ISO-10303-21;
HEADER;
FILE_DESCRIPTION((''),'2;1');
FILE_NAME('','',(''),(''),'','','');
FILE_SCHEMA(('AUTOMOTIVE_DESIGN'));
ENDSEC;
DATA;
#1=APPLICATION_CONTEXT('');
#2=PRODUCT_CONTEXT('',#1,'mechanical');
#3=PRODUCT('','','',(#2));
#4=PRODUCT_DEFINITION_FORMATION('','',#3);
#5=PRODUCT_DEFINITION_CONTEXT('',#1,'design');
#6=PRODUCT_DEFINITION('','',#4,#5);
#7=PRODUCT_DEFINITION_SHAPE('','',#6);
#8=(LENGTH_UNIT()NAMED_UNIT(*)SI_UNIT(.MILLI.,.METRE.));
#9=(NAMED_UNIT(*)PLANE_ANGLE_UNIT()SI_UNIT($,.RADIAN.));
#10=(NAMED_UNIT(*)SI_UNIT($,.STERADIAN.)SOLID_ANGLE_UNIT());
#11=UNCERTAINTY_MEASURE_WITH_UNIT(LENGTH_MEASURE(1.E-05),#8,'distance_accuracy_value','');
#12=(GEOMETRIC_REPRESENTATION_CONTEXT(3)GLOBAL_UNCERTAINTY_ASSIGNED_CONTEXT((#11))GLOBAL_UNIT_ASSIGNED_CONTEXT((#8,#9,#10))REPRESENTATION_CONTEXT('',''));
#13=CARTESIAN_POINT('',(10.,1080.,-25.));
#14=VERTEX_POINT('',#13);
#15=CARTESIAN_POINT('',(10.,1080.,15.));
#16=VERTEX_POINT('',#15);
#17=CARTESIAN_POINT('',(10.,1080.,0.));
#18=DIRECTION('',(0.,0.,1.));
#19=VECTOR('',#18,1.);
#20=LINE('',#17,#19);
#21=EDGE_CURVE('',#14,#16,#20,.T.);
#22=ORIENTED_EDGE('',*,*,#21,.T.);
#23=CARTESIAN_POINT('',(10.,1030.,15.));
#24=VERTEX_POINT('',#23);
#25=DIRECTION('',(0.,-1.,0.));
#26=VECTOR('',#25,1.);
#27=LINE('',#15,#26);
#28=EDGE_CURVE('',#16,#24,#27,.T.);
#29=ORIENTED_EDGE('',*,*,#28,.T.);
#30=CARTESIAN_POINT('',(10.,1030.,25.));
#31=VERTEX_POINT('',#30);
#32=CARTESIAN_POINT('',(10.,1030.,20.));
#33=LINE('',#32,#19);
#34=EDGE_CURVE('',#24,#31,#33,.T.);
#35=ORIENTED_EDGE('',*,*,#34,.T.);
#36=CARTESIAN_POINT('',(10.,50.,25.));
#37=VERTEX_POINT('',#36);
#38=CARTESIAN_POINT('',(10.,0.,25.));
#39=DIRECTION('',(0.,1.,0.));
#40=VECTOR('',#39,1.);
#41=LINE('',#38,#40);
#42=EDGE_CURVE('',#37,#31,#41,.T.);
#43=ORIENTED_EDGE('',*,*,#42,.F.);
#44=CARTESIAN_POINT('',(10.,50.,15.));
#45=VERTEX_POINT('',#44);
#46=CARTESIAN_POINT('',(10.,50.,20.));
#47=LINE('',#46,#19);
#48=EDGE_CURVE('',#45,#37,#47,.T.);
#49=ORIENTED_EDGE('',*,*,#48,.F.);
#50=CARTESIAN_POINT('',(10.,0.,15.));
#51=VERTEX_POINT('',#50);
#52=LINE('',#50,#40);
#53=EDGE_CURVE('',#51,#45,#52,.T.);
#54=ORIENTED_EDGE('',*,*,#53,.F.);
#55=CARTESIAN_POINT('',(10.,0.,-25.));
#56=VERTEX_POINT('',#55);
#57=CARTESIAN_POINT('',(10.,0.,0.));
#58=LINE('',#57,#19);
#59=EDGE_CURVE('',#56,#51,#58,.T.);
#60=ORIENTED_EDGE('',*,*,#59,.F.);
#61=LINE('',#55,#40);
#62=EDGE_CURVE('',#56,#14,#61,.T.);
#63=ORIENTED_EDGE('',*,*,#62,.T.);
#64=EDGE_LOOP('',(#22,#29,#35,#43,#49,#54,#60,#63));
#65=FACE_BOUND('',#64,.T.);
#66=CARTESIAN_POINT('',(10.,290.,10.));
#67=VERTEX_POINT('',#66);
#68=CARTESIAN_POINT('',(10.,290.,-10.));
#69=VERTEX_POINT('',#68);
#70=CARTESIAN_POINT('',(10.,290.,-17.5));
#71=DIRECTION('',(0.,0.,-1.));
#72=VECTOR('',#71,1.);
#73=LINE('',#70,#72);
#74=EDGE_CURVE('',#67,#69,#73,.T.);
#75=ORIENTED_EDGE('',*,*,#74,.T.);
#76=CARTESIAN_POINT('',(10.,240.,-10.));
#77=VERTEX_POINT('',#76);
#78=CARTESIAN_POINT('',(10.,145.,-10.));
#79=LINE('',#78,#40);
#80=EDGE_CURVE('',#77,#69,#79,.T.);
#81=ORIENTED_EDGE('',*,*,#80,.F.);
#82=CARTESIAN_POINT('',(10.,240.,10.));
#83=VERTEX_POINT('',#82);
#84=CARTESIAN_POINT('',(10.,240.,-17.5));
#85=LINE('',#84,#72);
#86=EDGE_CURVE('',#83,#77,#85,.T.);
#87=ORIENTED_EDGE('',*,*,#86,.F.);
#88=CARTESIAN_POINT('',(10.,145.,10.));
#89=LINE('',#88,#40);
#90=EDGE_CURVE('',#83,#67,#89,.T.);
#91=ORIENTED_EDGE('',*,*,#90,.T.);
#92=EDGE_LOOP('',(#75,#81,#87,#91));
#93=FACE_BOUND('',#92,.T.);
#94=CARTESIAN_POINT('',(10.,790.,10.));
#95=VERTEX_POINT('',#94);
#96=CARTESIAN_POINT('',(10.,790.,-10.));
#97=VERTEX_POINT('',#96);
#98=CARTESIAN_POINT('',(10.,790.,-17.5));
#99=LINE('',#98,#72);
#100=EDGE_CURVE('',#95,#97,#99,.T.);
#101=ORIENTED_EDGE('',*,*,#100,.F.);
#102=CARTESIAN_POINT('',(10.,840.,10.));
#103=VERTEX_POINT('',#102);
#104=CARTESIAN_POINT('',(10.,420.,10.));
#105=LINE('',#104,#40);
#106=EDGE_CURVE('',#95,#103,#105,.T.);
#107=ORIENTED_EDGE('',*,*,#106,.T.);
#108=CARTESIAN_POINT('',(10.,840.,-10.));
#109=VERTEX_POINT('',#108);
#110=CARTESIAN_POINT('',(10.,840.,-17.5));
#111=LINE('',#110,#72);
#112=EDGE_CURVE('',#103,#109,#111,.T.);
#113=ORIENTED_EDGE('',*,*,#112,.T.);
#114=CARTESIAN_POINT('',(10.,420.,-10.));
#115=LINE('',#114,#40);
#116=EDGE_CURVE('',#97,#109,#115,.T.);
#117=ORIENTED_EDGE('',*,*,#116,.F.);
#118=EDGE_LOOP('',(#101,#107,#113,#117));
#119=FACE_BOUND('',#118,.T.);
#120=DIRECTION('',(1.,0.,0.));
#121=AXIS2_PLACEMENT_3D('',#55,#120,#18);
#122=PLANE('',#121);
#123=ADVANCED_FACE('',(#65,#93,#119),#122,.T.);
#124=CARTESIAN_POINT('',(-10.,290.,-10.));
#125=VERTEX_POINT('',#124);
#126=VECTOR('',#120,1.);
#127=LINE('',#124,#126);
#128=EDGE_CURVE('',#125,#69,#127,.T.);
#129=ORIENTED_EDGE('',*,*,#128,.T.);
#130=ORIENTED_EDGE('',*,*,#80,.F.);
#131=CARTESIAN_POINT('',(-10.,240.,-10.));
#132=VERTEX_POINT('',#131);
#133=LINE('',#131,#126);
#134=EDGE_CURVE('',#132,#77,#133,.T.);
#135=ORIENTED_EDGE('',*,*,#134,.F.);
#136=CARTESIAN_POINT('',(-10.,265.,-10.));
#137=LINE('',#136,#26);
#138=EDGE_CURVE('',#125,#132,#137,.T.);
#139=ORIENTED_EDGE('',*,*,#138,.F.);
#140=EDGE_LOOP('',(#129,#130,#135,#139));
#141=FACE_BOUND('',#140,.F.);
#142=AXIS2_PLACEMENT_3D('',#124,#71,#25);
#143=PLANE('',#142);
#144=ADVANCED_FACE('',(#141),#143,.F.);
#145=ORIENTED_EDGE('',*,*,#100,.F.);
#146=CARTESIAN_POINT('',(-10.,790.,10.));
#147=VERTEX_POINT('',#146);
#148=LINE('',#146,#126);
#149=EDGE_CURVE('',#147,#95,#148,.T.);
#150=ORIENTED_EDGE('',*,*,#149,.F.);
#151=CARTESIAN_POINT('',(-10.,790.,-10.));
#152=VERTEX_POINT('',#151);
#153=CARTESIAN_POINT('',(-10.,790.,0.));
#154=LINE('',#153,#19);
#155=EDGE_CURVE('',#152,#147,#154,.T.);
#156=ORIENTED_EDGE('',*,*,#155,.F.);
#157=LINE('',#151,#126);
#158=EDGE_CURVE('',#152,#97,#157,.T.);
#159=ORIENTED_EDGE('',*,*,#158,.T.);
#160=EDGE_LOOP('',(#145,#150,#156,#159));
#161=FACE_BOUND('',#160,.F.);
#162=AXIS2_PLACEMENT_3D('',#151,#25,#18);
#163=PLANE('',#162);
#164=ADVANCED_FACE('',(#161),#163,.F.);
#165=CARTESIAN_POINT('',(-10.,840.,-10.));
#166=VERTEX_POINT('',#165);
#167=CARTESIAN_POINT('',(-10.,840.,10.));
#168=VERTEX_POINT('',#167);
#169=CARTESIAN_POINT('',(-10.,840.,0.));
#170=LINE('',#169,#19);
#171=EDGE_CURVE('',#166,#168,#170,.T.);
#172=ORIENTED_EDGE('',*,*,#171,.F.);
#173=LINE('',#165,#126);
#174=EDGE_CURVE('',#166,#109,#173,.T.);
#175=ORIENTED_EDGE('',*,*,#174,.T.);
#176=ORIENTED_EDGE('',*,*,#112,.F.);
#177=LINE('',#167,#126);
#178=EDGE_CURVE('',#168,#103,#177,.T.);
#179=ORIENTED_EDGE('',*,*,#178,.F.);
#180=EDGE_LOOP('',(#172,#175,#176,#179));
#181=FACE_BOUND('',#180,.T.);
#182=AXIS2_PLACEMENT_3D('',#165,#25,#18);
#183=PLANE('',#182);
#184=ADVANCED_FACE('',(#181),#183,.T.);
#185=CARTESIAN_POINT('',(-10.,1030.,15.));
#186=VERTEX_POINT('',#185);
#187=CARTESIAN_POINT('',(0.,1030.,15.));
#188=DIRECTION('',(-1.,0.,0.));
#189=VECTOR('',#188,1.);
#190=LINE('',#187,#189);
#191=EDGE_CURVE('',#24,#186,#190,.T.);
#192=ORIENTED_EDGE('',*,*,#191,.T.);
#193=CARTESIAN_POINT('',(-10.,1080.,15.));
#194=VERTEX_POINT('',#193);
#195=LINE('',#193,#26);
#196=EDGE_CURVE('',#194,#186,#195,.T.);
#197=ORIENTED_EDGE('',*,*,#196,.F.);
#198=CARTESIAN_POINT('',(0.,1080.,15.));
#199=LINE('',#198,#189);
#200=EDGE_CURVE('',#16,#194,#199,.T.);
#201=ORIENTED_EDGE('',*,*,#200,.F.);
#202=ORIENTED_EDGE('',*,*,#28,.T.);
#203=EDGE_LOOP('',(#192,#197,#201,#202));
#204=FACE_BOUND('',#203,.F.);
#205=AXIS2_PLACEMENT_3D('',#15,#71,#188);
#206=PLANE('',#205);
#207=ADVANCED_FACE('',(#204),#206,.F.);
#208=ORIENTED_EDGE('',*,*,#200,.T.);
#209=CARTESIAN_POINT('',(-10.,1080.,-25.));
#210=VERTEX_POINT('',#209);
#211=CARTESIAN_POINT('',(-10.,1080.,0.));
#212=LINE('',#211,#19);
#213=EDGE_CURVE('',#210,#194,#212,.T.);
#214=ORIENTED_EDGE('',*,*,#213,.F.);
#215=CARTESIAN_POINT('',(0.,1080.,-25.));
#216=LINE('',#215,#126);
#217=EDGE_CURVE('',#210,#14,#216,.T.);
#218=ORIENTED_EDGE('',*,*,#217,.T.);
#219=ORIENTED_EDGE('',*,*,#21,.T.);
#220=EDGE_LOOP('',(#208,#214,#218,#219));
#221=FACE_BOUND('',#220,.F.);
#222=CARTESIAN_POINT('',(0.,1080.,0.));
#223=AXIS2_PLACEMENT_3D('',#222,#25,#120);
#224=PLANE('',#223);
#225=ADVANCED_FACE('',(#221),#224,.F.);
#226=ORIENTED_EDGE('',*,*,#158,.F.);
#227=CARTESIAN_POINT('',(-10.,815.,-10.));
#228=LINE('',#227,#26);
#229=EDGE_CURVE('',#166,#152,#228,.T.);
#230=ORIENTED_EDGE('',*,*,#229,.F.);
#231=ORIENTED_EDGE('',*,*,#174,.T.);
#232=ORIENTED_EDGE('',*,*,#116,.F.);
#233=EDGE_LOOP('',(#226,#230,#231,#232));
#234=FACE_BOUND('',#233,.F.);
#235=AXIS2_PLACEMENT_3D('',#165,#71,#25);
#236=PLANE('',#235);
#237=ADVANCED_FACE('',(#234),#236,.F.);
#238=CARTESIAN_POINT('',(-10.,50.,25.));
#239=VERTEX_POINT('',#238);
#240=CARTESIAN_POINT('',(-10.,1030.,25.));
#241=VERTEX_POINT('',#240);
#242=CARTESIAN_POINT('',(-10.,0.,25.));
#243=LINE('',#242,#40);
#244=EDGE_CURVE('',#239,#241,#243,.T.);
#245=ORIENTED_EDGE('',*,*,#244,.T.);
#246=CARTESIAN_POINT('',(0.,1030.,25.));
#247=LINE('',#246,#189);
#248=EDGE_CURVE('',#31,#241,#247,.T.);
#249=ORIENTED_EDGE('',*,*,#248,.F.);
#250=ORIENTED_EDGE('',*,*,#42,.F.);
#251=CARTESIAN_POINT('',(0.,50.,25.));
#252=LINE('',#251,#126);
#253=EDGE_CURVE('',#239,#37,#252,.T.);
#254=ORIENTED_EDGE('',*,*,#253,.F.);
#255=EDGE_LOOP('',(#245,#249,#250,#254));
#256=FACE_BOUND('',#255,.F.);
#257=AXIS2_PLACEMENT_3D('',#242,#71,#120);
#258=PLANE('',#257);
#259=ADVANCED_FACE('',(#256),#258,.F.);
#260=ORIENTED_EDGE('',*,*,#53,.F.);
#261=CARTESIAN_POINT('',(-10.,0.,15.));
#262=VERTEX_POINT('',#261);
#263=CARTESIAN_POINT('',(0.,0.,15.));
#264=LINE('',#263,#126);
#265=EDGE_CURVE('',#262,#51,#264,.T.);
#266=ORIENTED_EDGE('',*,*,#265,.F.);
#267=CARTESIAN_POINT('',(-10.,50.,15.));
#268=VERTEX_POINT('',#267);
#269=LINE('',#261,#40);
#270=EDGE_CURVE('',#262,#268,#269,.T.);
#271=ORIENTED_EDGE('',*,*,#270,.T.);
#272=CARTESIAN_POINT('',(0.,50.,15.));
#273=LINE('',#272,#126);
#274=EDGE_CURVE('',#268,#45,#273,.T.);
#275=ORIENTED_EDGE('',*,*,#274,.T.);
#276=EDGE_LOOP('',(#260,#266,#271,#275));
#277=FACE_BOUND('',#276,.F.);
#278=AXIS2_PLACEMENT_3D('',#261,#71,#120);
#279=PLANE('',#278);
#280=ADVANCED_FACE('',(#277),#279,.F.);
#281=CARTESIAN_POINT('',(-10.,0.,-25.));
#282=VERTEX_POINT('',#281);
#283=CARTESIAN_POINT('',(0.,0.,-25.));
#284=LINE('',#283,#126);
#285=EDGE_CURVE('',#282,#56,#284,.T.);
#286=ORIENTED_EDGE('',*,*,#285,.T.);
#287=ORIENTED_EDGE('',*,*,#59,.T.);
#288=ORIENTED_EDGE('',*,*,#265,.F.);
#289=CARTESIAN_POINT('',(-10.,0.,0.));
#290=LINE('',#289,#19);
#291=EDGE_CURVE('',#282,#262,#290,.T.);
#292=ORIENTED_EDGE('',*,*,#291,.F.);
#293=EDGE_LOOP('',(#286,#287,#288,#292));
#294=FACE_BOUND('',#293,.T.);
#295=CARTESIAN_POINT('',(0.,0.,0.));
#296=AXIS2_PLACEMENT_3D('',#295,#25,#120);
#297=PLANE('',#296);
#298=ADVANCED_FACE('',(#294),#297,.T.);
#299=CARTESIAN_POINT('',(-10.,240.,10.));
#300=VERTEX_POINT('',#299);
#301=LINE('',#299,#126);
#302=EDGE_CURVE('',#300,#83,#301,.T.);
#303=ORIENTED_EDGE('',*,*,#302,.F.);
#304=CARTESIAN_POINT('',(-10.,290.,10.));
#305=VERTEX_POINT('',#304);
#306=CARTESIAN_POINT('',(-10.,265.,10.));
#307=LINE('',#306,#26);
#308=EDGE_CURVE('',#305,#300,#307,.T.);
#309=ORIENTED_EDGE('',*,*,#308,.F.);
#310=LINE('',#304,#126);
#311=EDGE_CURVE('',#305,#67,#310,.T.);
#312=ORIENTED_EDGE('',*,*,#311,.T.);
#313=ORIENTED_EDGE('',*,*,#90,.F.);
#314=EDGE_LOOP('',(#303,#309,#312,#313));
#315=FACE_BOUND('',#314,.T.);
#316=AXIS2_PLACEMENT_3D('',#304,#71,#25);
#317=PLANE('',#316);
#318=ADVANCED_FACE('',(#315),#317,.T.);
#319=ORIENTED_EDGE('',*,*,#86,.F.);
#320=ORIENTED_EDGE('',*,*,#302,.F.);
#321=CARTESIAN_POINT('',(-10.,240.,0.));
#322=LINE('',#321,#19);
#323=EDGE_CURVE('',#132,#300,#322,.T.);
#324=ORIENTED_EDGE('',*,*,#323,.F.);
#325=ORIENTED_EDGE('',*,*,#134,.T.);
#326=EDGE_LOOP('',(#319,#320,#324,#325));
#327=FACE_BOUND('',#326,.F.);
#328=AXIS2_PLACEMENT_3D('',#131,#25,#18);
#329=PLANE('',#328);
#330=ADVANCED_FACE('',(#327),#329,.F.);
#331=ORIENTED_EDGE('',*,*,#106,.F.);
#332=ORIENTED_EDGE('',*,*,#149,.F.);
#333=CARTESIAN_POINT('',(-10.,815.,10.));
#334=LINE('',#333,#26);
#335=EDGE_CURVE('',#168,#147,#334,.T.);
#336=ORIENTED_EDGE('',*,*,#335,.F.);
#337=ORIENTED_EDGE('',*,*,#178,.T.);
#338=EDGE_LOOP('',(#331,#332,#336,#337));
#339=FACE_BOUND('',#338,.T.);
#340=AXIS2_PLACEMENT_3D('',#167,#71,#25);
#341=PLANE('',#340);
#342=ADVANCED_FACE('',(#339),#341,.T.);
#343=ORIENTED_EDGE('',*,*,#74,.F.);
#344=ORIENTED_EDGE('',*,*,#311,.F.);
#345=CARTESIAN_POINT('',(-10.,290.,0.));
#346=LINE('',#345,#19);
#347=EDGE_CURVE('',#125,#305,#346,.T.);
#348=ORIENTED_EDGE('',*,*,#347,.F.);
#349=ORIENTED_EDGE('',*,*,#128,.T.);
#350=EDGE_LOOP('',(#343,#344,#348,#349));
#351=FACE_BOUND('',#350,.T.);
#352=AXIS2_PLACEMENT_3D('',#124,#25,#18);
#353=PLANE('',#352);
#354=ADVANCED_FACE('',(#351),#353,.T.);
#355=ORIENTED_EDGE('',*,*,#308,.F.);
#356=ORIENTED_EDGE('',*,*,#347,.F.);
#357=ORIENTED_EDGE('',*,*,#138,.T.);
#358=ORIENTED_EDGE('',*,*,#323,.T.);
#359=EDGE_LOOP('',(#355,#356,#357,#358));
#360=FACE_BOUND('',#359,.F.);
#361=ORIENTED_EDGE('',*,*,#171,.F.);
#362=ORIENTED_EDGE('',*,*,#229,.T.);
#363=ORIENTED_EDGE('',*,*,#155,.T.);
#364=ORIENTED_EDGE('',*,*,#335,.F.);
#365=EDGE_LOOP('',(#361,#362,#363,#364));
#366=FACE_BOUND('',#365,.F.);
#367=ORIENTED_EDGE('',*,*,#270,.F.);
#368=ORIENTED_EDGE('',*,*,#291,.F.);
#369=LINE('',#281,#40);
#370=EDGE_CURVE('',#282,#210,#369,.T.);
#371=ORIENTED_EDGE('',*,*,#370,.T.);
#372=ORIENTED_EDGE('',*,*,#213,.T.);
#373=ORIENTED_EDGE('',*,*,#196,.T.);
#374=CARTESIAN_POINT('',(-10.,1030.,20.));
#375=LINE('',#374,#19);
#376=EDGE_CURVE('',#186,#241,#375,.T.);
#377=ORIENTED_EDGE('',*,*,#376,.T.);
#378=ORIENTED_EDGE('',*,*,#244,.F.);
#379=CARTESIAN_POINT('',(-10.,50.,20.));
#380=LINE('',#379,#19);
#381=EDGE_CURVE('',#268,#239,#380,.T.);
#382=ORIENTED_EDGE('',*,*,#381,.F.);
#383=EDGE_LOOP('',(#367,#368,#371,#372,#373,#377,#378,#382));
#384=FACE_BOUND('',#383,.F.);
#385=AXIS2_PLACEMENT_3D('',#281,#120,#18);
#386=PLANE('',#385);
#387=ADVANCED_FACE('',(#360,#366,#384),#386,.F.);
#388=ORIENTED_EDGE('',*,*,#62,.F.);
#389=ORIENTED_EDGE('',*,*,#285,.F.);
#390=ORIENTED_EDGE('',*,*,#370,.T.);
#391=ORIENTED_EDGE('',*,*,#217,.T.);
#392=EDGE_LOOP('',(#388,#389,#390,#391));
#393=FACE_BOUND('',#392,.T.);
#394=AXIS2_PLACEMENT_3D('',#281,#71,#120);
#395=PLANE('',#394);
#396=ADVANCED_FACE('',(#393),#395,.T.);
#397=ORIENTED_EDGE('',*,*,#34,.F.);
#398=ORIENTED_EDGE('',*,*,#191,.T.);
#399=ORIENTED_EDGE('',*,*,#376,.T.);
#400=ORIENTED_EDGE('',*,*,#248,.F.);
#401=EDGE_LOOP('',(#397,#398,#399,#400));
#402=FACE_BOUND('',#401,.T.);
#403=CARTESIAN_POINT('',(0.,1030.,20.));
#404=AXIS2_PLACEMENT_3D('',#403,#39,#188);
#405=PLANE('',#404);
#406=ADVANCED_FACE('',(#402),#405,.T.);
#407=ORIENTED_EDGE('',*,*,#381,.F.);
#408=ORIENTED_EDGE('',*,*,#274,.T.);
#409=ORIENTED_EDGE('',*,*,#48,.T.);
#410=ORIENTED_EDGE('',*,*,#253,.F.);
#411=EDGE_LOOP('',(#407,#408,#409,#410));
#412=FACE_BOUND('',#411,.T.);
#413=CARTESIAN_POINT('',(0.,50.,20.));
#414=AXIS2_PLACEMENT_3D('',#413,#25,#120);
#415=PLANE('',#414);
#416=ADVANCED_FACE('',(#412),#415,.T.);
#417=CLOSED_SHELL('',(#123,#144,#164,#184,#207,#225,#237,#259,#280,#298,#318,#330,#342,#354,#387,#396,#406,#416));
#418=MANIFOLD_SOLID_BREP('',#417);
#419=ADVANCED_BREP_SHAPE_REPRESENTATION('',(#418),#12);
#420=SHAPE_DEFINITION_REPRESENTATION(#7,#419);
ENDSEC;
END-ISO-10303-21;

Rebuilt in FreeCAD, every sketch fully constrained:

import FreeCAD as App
import Part
import Sketcher

V = App.Vector


def add_polygon(sketch, points):
    """Adds a closed chain of lines whose ends are joined by coincident constraints."""
    first, n = sketch.GeometryCount, len(points)
    for a, b in zip(points, points[1:] + points[:1]):
        sketch.addGeometry(Part.LineSegment(App.Vector(*a, 0), App.Vector(*b, 0)), False)
    for i in range(n):
        sketch.addConstraint(Sketcher.Constraint("Coincident", first + i, 2, first + (i + 1) % n, 1))

doc = App.newDocument("Part")
body = doc.addObject("PartDesign::Body", "Body")

sketch1 = doc.addObject("Sketcher::SketchObject", "Sketch")
body.addObject(sketch1)
sketch1.AttachmentSupport = (doc.XZ_Plane, [""])
sketch1.MapMode = "FlatFace"
add_polygon(sketch1, [(-10, 25), (-10, -25), (10, -25), (10, 25)])
sketch1.addConstraint([
    Sketcher.Constraint("Vertical", 0),
    Sketcher.Constraint("Horizontal", 1),
    Sketcher.Constraint("Vertical", 2),
    Sketcher.Constraint("Horizontal", 3),
    Sketcher.Constraint("Symmetric", 0, 2, 2, 2, -1, 1),
    Sketcher.Constraint("DistanceX", 1, 1, 1, 2, 20.0),
    Sketcher.Constraint("DistanceY", 0, 2, 0, 1, 50.0),
])
pad1 = doc.addObject("PartDesign::Pad", "Pad")
body.addObject(pad1)
pad1.Profile = sketch1
pad1.Length = 1080
pad1.Reversed = True

sketch2 = doc.addObject("Sketcher::SketchObject", "Sketch001")
body.addObject(sketch2)
sketch2.AttachmentSupport = (doc.YZ_Plane, [""])
sketch2.MapMode = "FlatFace"
sketch2.AttachmentOffset = App.Placement(V(0, 0, -10), App.Rotation())
add_polygon(sketch2, [(840, 10), (840, -10), (790, -10), (790, 10)])
add_polygon(sketch2, [(290, 10), (290, -10), (240, -10), (240, 10)])
sketch2.addConstraint([
    Sketcher.Constraint("Vertical", 0),
    Sketcher.Constraint("Horizontal", 1),
    Sketcher.Constraint("Vertical", 2),
    Sketcher.Constraint("Horizontal", 3),
    Sketcher.Constraint("Vertical", 4),
    Sketcher.Constraint("Horizontal", 5),
    Sketcher.Constraint("Vertical", 6),
    Sketcher.Constraint("Horizontal", 7),
    Sketcher.Constraint("Horizontal", 1, 2, 4, 2),
    Sketcher.Constraint("Horizontal", 3, 2, 6, 2),
    Sketcher.Constraint("Equal", 3, 5),
    Sketcher.Constraint("DistanceX", 1, 2, 1, 1, 50.0),
    Sketcher.Constraint("DistanceY", 0, 2, 0, 1, 20.0),
    Sketcher.Constraint("DistanceX", -1, 1, 0, 2, 840.0),
    Sketcher.Constraint("DistanceY", 0, 2, -1, 1, 10.0),
    Sketcher.Constraint("DistanceX", -1, 1, 4, 2, 290.0),
])
pocket1 = doc.addObject("PartDesign::Pocket", "Pocket")
body.addObject(pocket1)
pocket1.Profile = sketch2
pocket1.Type = "ThroughAll"
pocket1.Reversed = True

sketch3 = doc.addObject("Sketcher::SketchObject", "Sketch002")
body.addObject(sketch3)
sketch3.AttachmentSupport = (doc.XZ_Plane, [""])
sketch3.MapMode = "FlatFace"
add_polygon(sketch3, [(-10, 25), (-10, 15), (10, 15), (10, 25)])
sketch3.addConstraint([
    Sketcher.Constraint("Vertical", 0),
    Sketcher.Constraint("Horizontal", 1),
    Sketcher.Constraint("Vertical", 2),
    Sketcher.Constraint("Horizontal", 3),
    Sketcher.Constraint("DistanceX", 1, 1, 1, 2, 20.0),
    Sketcher.Constraint("DistanceY", 0, 2, 0, 1, 10.0),
    Sketcher.Constraint("DistanceX", 0, 2, -1, 1, 10.0),
    Sketcher.Constraint("DistanceY", -1, 1, 0, 2, 15.0),
])
pocket2 = doc.addObject("PartDesign::Pocket", "Pocket001")
body.addObject(pocket2)
pocket2.Profile = sketch3
pocket2.Length = 50

sketch4 = doc.addObject("Sketcher::SketchObject", "Sketch003")
body.addObject(sketch4)
sketch4.AttachmentSupport = (doc.XZ_Plane, [""])
sketch4.MapMode = "FlatFace"
sketch4.AttachmentOffset = App.Placement(V(0, 0, -1080), App.Rotation())
add_polygon(sketch4, [(10, 25), (10, 15), (-10, 15), (-10, 25)])
sketch4.addConstraint([
    Sketcher.Constraint("Vertical", 0),
    Sketcher.Constraint("Horizontal", 1),
    Sketcher.Constraint("Vertical", 2),
    Sketcher.Constraint("Horizontal", 3),
    Sketcher.Constraint("DistanceX", 1, 2, 1, 1, 20.0),
    Sketcher.Constraint("DistanceY", 0, 2, 0, 1, 10.0),
    Sketcher.Constraint("DistanceX", -1, 1, 0, 2, 10.0),
    Sketcher.Constraint("DistanceY", -1, 1, 0, 2, 15.0),
])
pocket3 = doc.addObject("PartDesign::Pocket", "Pocket002")
body.addObject(pocket3)
pocket3.Profile = sketch4
pocket3.Length = 50
pocket3.Reversed = True

doc.recompute()
